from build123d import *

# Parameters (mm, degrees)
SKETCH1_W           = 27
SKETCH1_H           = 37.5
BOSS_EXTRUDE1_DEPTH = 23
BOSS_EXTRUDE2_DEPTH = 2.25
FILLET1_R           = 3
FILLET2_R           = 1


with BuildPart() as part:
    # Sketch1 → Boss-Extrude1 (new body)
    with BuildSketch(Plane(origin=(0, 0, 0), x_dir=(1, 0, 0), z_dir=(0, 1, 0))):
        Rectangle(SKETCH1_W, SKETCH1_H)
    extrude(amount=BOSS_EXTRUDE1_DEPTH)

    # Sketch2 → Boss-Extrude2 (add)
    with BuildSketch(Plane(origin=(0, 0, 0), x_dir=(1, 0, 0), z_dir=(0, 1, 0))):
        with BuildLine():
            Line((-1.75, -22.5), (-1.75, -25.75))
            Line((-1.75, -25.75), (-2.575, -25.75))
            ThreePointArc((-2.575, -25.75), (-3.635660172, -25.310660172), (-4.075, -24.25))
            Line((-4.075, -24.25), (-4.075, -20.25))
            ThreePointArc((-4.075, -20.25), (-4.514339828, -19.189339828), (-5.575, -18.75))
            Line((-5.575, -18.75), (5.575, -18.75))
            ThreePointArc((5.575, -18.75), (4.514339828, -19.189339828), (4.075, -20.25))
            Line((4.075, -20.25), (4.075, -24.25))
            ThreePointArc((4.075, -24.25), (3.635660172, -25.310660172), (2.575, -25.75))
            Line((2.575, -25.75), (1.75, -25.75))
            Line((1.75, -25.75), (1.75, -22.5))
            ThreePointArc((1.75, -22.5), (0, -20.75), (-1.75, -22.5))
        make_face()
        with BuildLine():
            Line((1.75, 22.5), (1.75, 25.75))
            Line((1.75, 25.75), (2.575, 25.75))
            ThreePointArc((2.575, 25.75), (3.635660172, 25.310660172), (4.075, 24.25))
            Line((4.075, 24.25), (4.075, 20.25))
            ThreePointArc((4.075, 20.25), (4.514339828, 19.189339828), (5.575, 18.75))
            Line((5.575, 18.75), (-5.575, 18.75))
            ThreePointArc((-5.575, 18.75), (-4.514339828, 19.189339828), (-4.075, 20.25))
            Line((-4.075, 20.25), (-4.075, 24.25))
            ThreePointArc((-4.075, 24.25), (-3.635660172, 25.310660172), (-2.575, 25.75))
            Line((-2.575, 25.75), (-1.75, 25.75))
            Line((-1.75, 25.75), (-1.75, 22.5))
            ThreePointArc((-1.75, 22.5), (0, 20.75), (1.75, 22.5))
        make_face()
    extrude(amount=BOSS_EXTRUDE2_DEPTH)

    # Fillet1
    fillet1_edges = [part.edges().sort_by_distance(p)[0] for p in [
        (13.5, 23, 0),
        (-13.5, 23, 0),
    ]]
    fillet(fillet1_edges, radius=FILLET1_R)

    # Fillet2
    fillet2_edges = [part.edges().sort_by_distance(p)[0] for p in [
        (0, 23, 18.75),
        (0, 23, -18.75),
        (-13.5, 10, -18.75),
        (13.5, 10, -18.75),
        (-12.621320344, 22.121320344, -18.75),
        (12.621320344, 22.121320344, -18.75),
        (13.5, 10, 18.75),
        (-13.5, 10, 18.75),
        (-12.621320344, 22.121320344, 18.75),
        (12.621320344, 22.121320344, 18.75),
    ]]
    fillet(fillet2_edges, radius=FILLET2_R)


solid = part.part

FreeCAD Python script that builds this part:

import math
import FreeCAD as App
import Part
import Sketcher


def edges_at(feature, points):
    """Names of the edges that pass closest to the given points."""
    edges = feature.Shape.Edges
    near = lambda p: min(range(len(edges)), key=lambda i: edges[i].distToShape(Part.Vertex(*p))[0])
    return sorted({f"Edge{near(p) + 1}" for p in points})

doc = App.newDocument("Part")
params = doc.addObject("Spreadsheet::Sheet", "Params")
for row, (alias, value) in enumerate([
    ("sketch1_width", "27 mm"),
    ("sketch1_height", "37.5 mm"),
    ("pad1_length", "23 mm"),
    ("sketch2_radius", "1.5 mm"),
    ("sketch2_height", "4 mm"),
    ("sketch2_radius2", "1.75 mm"),
    ("sketch2_width", "11.15 mm"),
    ("sketch2_height2", "3.25 mm"),
    ("pad2_length", "2.25 mm"),
    ("fillet_radius", "3 mm"),
    ("fillet2_radius", "1 mm"),
], start=1):
    params.set(f"A{row}", alias)
    params.set(f"B{row}", "=" + value)
    params.setAlias(f"B{row}", alias)

body = doc.addObject("PartDesign::Body", "Body")

# Sketch on XZ plane
sketch1 = body.newObject("Sketcher::SketchObject", "Sketch")
sketch1.AttachmentSupport = (doc.getObject("XZ_Plane"), [""])
sketch1.MapMode = "FlatFace"
sketch1.addGeometry(Part.LineSegment(App.Vector(-14, -19, 0), App.Vector(-14, 19, 0)), False)
sketch1.addGeometry(Part.LineSegment(App.Vector(-14, 19, 0), App.Vector(14, 19, 0)), False)
sketch1.addGeometry(Part.LineSegment(App.Vector(14, 19, 0), App.Vector(14, -19, 0)), False)
sketch1.addGeometry(Part.LineSegment(App.Vector(14, -19, 0), App.Vector(-14, -19, 0)), False)
sketch1.addConstraint(Sketcher.Constraint("Coincident", 0, 2, 1, 1))
sketch1.addConstraint(Sketcher.Constraint("Coincident", 1, 2, 2, 1))
sketch1.addConstraint(Sketcher.Constraint("Coincident", 2, 2, 3, 1))
sketch1.addConstraint(Sketcher.Constraint("Coincident", 3, 2, 0, 1))
sketch1.addConstraint(Sketcher.Constraint("Vertical", 0))
sketch1.addConstraint(Sketcher.Constraint("Horizontal", 1))
sketch1.addConstraint(Sketcher.Constraint("Vertical", 2))
sketch1.addConstraint(Sketcher.Constraint("Horizontal", 3))
sketch1.addConstraint(Sketcher.Constraint("Symmetric", 0, 2, 2, 2, -1, 1))
sketch1.addConstraint(Sketcher.Constraint("DistanceX", 1, 1, 1, 2, 27.0))
sketch1.addConstraint(Sketcher.Constraint("DistanceY", 0, 1, 0, 2, 37.5))
sketch1.setExpression("Constraints[9]", "Params.sketch1_width")
sketch1.setExpression("Constraints[10]", "Params.sketch1_height")
pad1 = body.newObject("PartDesign::Pad", "Pad")
pad1.Profile = sketch1
pad1.setExpression("Length", "Params.pad1_length")
pad1.Reversed = True

# Sketch on XZ plane
sketch2 = body.newObject("Sketcher::SketchObject", "Sketch001")
sketch2.AttachmentSupport = (doc.getObject("XZ_Plane"), [""])
sketch2.MapMode = "FlatFace"
sketch2.addGeometry(Part.LineSegment(App.Vector(-1.8, 25.8, 0), App.Vector(-1.8, 22.5, 0)), False)
sketch2.addGeometry(Part.ArcOfCircle(Part.Circle(App.Vector(0, 22.5, 0), App.Vector(0, 0, 1), 1.8), math.radians(180), math.radians(360)), False)
sketch2.addGeometry(Part.LineSegment(App.Vector(1.8, 22.5, 0), App.Vector(1.8, 25.8, 0)), False)
sketch2.addGeometry(Part.LineSegment(App.Vector(1.8, 25.8, 0), App.Vector(2.6, 25.8, 0)), False)
sketch2.addGeometry(Part.ArcOfCircle(Part.Circle(App.Vector(2.6, 24.3, 0), App.Vector(0, 0, 1), 1.5), math.radians(0), math.radians(90)), False)
sketch2.addGeometry(Part.LineSegment(App.Vector(4.1, 24.2, 0), App.Vector(4.1, 20.2, 0)), False)
sketch2.addGeometry(Part.ArcOfCircle(Part.Circle(App.Vector(5.6, 20.2, 0), App.Vector(0, 0, 1), 1.5), math.radians(180), math.radians(270)), False)
sketch2.addGeometry(Part.LineSegment(App.Vector(5.6, 18.8, 0), App.Vector(-5.6, 18.8, 0)), False)
sketch2.addGeometry(Part.ArcOfCircle(Part.Circle(App.Vector(-5.6, 20.2, 0), App.Vector(0, 0, 1), 1.5), math.radians(-90), math.radians(0)), False)
sketch2.addGeometry(Part.LineSegment(App.Vector(-4.1, 20.2, 0), App.Vector(-4.1, 24.2, 0)), False)
sketch2.addGeometry(Part.ArcOfCircle(Part.Circle(App.Vector(-2.6, 24.3, 0), App.Vector(0, 0, 1), 1.5), math.radians(90), math.radians(180)), False)
sketch2.addGeometry(Part.LineSegment(App.Vector(-2.6, 25.8, 0), App.Vector(-1.8, 25.8, 0)), False)
sketch2.addGeometry(Part.LineSegment(App.Vector(1.8, -25.8, 0), App.Vector(1.8, -22.5, 0)), False)
sketch2.addGeometry(Part.ArcOfCircle(Part.Circle(App.Vector(0, -22.5, 0), App.Vector(0, 0, 1), 1.8), math.radians(0), math.radians(180)), False)
sketch2.addGeometry(Part.LineSegment(App.Vector(-1.8, -22.5, 0), App.Vector(-1.8, -25.8, 0)), False)
sketch2.addGeometry(Part.LineSegment(App.Vector(-1.8, -25.8, 0), App.Vector(-2.6, -25.8, 0)), False)
sketch2.addGeometry(Part.ArcOfCircle(Part.Circle(App.Vector(-2.6, -24.3, 0), App.Vector(0, 0, 1), 1.5), math.radians(180), math.radians(270)), False)
sketch2.addGeometry(Part.LineSegment(App.Vector(-4.1, -24.2, 0), App.Vector(-4.1, -20.2, 0)), False)
sketch2.addGeometry(Part.ArcOfCircle(Part.Circle(App.Vector(-5.6, -20.2, 0), App.Vector(0, 0, 1), 1.5), math.radians(0), math.radians(90)), False)
sketch2.addGeometry(Part.LineSegment(App.Vector(-5.6, -18.8, 0), App.Vector(5.6, -18.8, 0)), False)
sketch2.addGeometry(Part.ArcOfCircle(Part.Circle(App.Vector(5.6, -20.2, 0), App.Vector(0, 0, 1), 1.5), math.radians(90), math.radians(180)), False)
sketch2.addGeometry(Part.LineSegment(App.Vector(4.1, -20.2, 0), App.Vector(4.1, -24.2, 0)), False)
sketch2.addGeometry(Part.ArcOfCircle(Part.Circle(App.Vector(2.6, -24.3, 0), App.Vector(0, 0, 1), 1.5), math.radians(-90), math.radians(0)), False)
sketch2.addGeometry(Part.LineSegment(App.Vector(2.6, -25.8, 0), App.Vector(1.8, -25.8, 0)), False)
sketch2.addConstraint(Sketcher.Constraint("Tangent", 0, 2, 1, 1))
sketch2.addConstraint(Sketcher.Constraint("Tangent", 1, 2, 2, 1))
sketch2.addConstraint(Sketcher.Constraint("Coincident", 2, 2, 3, 1))
sketch2.addConstraint(Sketcher.Constraint("Tangent", 3, 2, 4, 2))
sketch2.addConstraint(Sketcher.Constraint("Tangent", 4, 1, 5, 1))
sketch2.addConstraint(Sketcher.Constraint("Tangent", 5, 2, 6, 1))
sketch2.addConstraint(Sketcher.Constraint("Tangent", 6, 2, 7, 1))
sketch2.addConstraint(Sketcher.Constraint("Tangent", 7, 2, 8, 1))
sketch2.addConstraint(Sketcher.Constraint("Tangent", 8, 2, 9, 1))
sketch2.addConstraint(Sketcher.Constraint("Tangent", 9, 2, 10, 2))
sketch2.addConstraint(Sketcher.Constraint("Tangent", 10, 1, 11, 1))
sketch2.addConstraint(Sketcher.Constraint("Coincident", 11, 2, 0, 1))
sketch2.addConstraint(Sketcher.Constraint("Tangent", 12, 2, 13, 1))
sketch2.addConstraint(Sketcher.Constraint("Tangent", 13, 2, 14, 1))
sketch2.addConstraint(Sketcher.Constraint("Coincident", 14, 2, 15, 1))
sketch2.addConstraint(Sketcher.Constraint("Tangent", 15, 2, 16, 2))
sketch2.addConstraint(Sketcher.Constraint("Tangent", 16, 1, 17, 1))
sketch2.addConstraint(Sketcher.Constraint("Tangent", 17, 2, 18, 1))
sketch2.addConstraint(Sketcher.Constraint("Tangent", 18, 2, 19, 1))
sketch2.addConstraint(Sketcher.Constraint("Tangent", 19, 2, 20, 1))
sketch2.addConstraint(Sketcher.Constraint("Tangent", 20, 2, 21, 1))
sketch2.addConstraint(Sketcher.Constraint("Tangent", 21, 2, 22, 2))
sketch2.addConstraint(Sketcher.Constraint("Tangent", 22, 1, 23, 1))
sketch2.addConstraint(Sketcher.Constraint("Coincident", 23, 2, 12, 1))
sketch2.addConstraint(Sketcher.Constraint("Vertical", 0))
sketch2.addConstraint(Sketcher.Constraint("Vertical", 2))
sketch2.addConstraint(Sketcher.Constraint("Horizontal", 3))
sketch2.addConstraint(Sketcher.Constraint("Vertical", 5))
sketch2.addConstraint(Sketcher.Constraint("Horizontal", 7))
sketch2.addConstraint(Sketcher.Constraint("Vertical", 9))
sketch2.addConstraint(Sketcher.Constraint("Horizontal", 11))
sketch2.addConstraint(Sketcher.Constraint("Vertical", 12))
sketch2.addConstraint(Sketcher.Constraint("Vertical", 14))
sketch2.addConstraint(Sketcher.Constraint("Horizontal", 15))
sketch2.addConstraint(Sketcher.Constraint("Vertical", 17))
sketch2.addConstraint(Sketcher.Constraint("Horizontal", 19))
sketch2.addConstraint(Sketcher.Constraint("Vertical", 21))
sketch2.addConstraint(Sketcher.Constraint("Horizontal", 23))
sketch2.addConstraint(Sketcher.Constraint("Equal", 4, 6))
sketch2.addConstraint(Sketcher.Constraint("Equal", 6, 8))
sketch2.addConstraint(Sketcher.Constraint("Equal", 8, 10))
sketch2.addConstraint(Sketcher.Constraint("Equal", 1, 13))
sketch2.addConstraint(Sketcher.Constraint("Equal", 10, 16))
sketch2.addConstraint(Sketcher.Constraint("Equal", 16, 18))
sketch2.addConstraint(Sketcher.Constraint("Equal", 18, 20))
sketch2.addConstraint(Sketcher.Constraint("Equal", 20, 22))
sketch2.addConstraint(Sketcher.Constraint("Symmetric", 1, 3, 13, 3, -1, 1))
sketch2.addConstraint(Sketcher.Constraint("Symmetric", 4, 3, 16, 3, -1, 1))
sketch2.addConstraint(Sketcher.Constraint("Symmetric", 8, 3, 20, 3, -1, 1))
sketch2.addConstraint(Sketcher.Constraint("Symmetric", 4, 3, 10, 3, -2))
sketch2.addConstraint(Sketcher.Constraint("Symmetric", 14, 2, 23, 2, -2))
sketch2.addConstraint(Sketcher.Constraint("Radius", 4, 1.5))
sketch2.addConstraint(Sketcher.Constraint("DistanceY", 5, 2, 5, 1, 4.0))
sketch2.addConstraint(Sketcher.Constraint("Radius", 1, 1.75))
sketch2.addConstraint(Sketcher.Constraint("DistanceY", 13, 3, 1, 3, 45.0))
sketch2.addConstraint(Sketcher.Constraint("DistanceX", 7, 2, 7, 1, 11.15))
sketch2.addConstraint(Sketcher.Constraint("DistanceY", 0, 2, 0, 1, 3.25))
sketch2.setExpression("Constraints[51]", "Params.sketch2_radius")
sketch2.setExpression("Constraints[52]", "Params.sketch2_height")
sketch2.setExpression("Constraints[53]", "Params.sketch2_radius2")
sketch2.setExpression("Constraints[55]", "Params.sketch2_width")
sketch2.setExpression("Constraints[56]", "Params.sketch2_height2")
pad2 = body.newObject("PartDesign::Pad", "Pad001")
pad2.Profile = sketch2
pad2.setExpression("Length", "Params.pad2_length")
pad2.Reversed = True
doc.recompute()

fillet = body.newObject("PartDesign::Fillet", "Fillet")
fillet.Base = (pad2, edges_at(pad2, [(13.5, 23, 0), (-13.5, 23, 0)]))
fillet.setExpression("Radius", "Params.fillet_radius")
doc.recompute()

fillet2 = body.newObject("PartDesign::Fillet", "Fillet001")
fillet2.Base = (fillet, edges_at(fillet, [
    (0, 23, 18.75),
    (0, 23, -18.75),
    (-13.5, 10, -18.75),
    (13.5, 10, -18.75),
    (-12.621, 22.121, -18.75),
    (12.621, 22.121, -18.75),
    (13.5, 10, 18.75),
    (-13.5, 10, 18.75),
    (-12.621, 22.121, 18.75),
    (12.621, 22.121, 18.75),
]))
fillet2.setExpression("Radius", "Params.fillet2_radius")

doc.recompute()
